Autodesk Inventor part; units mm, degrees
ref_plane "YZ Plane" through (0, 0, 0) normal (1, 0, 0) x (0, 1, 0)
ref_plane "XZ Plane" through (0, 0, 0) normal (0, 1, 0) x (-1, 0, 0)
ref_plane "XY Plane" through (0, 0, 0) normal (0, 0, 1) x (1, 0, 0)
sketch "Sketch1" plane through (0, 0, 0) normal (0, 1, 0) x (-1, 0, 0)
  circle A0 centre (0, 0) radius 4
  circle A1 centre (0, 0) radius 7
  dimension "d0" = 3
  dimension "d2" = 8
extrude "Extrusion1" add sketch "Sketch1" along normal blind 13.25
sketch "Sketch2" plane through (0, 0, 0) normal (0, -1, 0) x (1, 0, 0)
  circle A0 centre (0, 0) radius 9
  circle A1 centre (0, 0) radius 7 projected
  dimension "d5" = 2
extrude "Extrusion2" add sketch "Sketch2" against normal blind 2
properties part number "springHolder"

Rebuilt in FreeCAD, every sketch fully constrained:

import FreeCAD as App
import Part
import Sketcher
from FreeCAD import Vector
Q = App.Units.Quantity

doc = App.newDocument("Part")
params = doc.addObject("Spreadsheet::Sheet", "Params")
for row, (alias, value) in enumerate([
    ("sketch1_diameter", "8 mm"),
    ("sketch1_diameter2", "14 mm"),
    ("pad1_length", "13.25 mm"),
    ("sketch2_diameter", "18 mm"),
    ("sketch2_diameter2", "14 mm"),
    ("pad2_length", "2 mm"),
], start=1):
    params.set(f"A{row}", alias)
    params.set(f"B{row}", "=" + value)
    params.setAlias(f"B{row}", alias)

body = doc.addObject("PartDesign::Body", "Body")

sketch1 = body.newObject("Sketcher::SketchObject", "Sketch")
sketch1.AttachmentSupport = (doc.getObject("XZ_Plane"), [""])
sketch1.MapMode = "FlatFace"
sketch1.addGeometry([
    Part.Circle(Vector(0, 0, 0), Vector(0, 0, 1), 7),
    Part.Circle(Vector(0, 0, 0), Vector(0, 0, 1), 4),
], False)
sketch1.addConstraint([
    Sketcher.Constraint("Coincident", 0, 3, -1, 1),
    Sketcher.Constraint("Coincident", 1, 3, -1, 1),
    Sketcher.Constraint("Diameter", 1, Q("8 mm")),
    Sketcher.Constraint("Diameter", 0, Q("14 mm")),
])
sketch1.setExpression("Constraints[2]", "Params.sketch1_diameter")
sketch1.setExpression("Constraints[3]", "Params.sketch1_diameter2")
pad1 = body.newObject("PartDesign::Pad", "Pad")
pad1.Profile = sketch1
pad1.setExpression("Length", "Params.pad1_length")
pad1.Reversed = True

sketch2 = body.newObject("Sketcher::SketchObject", "Sketch001")
sketch2.AttachmentSupport = (doc.getObject("XZ_Plane"), [""])
sketch2.MapMode = "FlatFace"
sketch2.addGeometry([
    Part.Circle(Vector(0, 0, 0), Vector(0, 0, 1), 9),
    Part.Circle(Vector(0, 0, 0), Vector(0, 0, 1), 7),
], False)
sketch2.addConstraint([
    Sketcher.Constraint("Coincident", 0, 3, -1, 1),
    Sketcher.Constraint("Coincident", 1, 3, -1, 1),
    Sketcher.Constraint("Diameter", 0, Q("18 mm")),
    Sketcher.Constraint("Diameter", 1, Q("14 mm")),
])
sketch2.setExpression("Constraints[2]", "Params.sketch2_diameter")
sketch2.setExpression("Constraints[3]", "Params.sketch2_diameter2")
pad2 = body.newObject("PartDesign::Pad", "Pad001")
pad2.Profile = sketch2
pad2.setExpression("Length", "Params.pad2_length")
pad2.Reversed = True

doc.recompute()
